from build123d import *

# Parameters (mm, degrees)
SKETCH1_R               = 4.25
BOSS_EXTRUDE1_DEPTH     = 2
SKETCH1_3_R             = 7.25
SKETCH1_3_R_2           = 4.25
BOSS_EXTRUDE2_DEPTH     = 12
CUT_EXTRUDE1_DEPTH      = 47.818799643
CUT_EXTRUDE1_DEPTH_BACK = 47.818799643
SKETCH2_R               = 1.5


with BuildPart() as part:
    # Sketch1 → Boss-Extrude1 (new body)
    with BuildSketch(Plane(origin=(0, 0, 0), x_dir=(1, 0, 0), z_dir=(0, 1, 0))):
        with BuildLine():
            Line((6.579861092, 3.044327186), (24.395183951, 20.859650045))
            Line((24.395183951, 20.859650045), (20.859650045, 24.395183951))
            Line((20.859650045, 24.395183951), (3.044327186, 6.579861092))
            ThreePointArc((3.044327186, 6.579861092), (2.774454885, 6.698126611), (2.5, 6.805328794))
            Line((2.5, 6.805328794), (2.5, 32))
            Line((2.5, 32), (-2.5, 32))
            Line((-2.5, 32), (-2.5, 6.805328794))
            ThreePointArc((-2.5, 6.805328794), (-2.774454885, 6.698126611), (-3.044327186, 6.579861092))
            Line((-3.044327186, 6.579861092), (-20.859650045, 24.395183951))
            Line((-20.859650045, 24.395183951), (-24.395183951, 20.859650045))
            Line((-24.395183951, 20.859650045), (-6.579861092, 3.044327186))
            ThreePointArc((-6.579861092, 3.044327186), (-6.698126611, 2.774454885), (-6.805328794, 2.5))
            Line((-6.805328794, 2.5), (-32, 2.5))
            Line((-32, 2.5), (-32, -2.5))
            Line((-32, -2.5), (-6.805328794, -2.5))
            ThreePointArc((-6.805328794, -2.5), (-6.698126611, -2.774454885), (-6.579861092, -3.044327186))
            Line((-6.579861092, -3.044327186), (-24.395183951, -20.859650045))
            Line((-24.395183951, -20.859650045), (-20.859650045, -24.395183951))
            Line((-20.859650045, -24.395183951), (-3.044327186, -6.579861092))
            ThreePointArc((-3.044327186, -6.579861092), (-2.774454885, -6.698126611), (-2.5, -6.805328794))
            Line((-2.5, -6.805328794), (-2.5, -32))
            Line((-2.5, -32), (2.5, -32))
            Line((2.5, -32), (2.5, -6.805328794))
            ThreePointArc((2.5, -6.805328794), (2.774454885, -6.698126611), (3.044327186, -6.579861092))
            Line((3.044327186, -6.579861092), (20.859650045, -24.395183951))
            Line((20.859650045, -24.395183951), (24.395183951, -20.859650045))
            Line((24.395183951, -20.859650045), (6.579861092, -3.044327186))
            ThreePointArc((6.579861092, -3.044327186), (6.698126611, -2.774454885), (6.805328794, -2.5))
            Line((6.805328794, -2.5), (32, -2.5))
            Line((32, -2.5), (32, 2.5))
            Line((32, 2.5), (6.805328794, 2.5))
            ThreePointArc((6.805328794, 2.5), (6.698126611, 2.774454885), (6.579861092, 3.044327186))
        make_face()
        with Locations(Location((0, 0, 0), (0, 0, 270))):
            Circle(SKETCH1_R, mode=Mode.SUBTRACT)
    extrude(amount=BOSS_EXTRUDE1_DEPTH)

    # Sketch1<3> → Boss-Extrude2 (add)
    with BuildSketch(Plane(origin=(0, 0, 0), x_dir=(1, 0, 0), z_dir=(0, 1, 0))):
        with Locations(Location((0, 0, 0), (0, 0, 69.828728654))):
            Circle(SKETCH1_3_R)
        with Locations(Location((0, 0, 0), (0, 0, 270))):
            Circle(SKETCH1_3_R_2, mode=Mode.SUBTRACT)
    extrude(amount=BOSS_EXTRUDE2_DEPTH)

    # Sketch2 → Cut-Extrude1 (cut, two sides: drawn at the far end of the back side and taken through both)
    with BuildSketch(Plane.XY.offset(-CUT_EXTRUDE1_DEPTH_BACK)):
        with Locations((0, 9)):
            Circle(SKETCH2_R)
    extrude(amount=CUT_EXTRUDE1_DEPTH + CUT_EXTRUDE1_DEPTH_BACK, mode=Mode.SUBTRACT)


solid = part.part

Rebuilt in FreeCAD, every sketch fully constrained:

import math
import FreeCAD as App
import Part
import Sketcher

V = App.Vector

doc = App.newDocument("Part")
body = doc.addObject("PartDesign::Body", "Body")

sketch1 = body.newObject("Sketcher::SketchObject", "Sketch")
sketch1.AttachmentSupport = (doc.getObject("XZ_Plane"), [""])
sketch1.MapMode = "FlatFace"
sketch1.addGeometry([
    Part.LineSegment(V(6.579861, -3.044327, 0), V(24.395184, -20.85965, 0)),
    Part.LineSegment(V(24.395184, -20.85965, 0), V(20.85965, -24.395184, 0)),
    Part.LineSegment(V(20.85965, -24.395184, 0), V(3.044327, -6.579861, 0)),
    Part.ArcOfCircle(Part.Circle(V(0, 0, 0), V(0, 0, 1), 7.25), math.radians(-69.828729), math.radians(-65.171271)),
    Part.LineSegment(V(2.5, -6.805329, 0), V(2.5, -32, 0)),
    Part.LineSegment(V(2.5, -32, 0), V(-2.5, -32, 0)),
    Part.LineSegment(V(-2.5, -32, 0), V(-2.5, -6.805329, 0)),
    Part.ArcOfCircle(Part.Circle(V(0, 0, 0), V(0, 0, 1), 7.25), math.radians(-114.828729), math.radians(-110.171271)),
    Part.LineSegment(V(-3.044327, -6.579861, 0), V(-20.85965, -24.395184, 0)),
    Part.LineSegment(V(-20.85965, -24.395184, 0), V(-24.395184, -20.85965, 0)),
    Part.LineSegment(V(-24.395184, -20.85965, 0), V(-6.579861, -3.044327, 0)),
    Part.ArcOfCircle(Part.Circle(V(0, 0, 0), V(0, 0, 1), 7.25), math.radians(-159.828729), math.radians(-155.171271)),
    Part.LineSegment(V(-6.805329, -2.5, 0), V(-32, -2.5, 0)),
    Part.LineSegment(V(-32, -2.5, 0), V(-32, 2.5, 0)),
    Part.LineSegment(V(-32, 2.5, 0), V(-6.805329, 2.5, 0)),
    Part.ArcOfCircle(Part.Circle(V(0, 0, 0), V(0, 0, 1), 7.25), math.radians(155.171271), math.radians(159.828729)),
    Part.LineSegment(V(-6.579861, 3.044327, 0), V(-24.395184, 20.85965, 0)),
    Part.LineSegment(V(-24.395184, 20.85965, 0), V(-20.85965, 24.395184, 0)),
    Part.LineSegment(V(-20.85965, 24.395184, 0), V(-3.044327, 6.579861, 0)),
    Part.ArcOfCircle(Part.Circle(V(0, 0, 0), V(0, 0, 1), 7.25), math.radians(110.171271), math.radians(114.828729)),
    Part.LineSegment(V(-2.5, 6.805329, 0), V(-2.5, 32, 0)),
    Part.LineSegment(V(-2.5, 32, 0), V(2.5, 32, 0)),
    Part.LineSegment(V(2.5, 32, 0), V(2.5, 6.805329, 0)),
    Part.ArcOfCircle(Part.Circle(V(0, 0, 0), V(0, 0, 1), 7.25), math.radians(65.171271), math.radians(69.828729)),
    Part.LineSegment(V(3.044327, 6.579861, 0), V(20.85965, 24.395184, 0)),
    Part.LineSegment(V(20.85965, 24.395184, 0), V(24.395184, 20.85965, 0)),
    Part.LineSegment(V(24.395184, 20.85965, 0), V(6.579861, 3.044327, 0)),
    Part.ArcOfCircle(Part.Circle(V(0, 0, 0), V(0, 0, 1), 7.25), math.radians(20.171271), math.radians(24.828729)),
    Part.LineSegment(V(6.805329, 2.5, 0), V(32, 2.5, 0)),
    Part.LineSegment(V(32, 2.5, 0), V(32, -2.5, 0)),
    Part.LineSegment(V(32, -2.5, 0), V(6.805329, -2.5, 0)),
    Part.ArcOfCircle(Part.Circle(V(0, 0, 0), V(0, 0, 1), 7.25), math.radians(-24.828729), math.radians(-20.171271)),
    Part.Circle(V(0, 0, 0), V(0, 0, 1), 4.25),
], False)
sketch1.addConstraint([
    Sketcher.Constraint("Coincident", 0, 2, 1, 1),
    Sketcher.Constraint("Coincident", 1, 2, 2, 1),
    Sketcher.Constraint("Coincident", 2, 2, 3, 2),
    Sketcher.Constraint("Coincident", 3, 1, 4, 1),
    Sketcher.Constraint("Coincident", 4, 2, 5, 1),
    Sketcher.Constraint("Coincident", 5, 2, 6, 1),
    Sketcher.Constraint("Coincident", 6, 2, 7, 2),
    Sketcher.Constraint("Coincident", 7, 1, 8, 1),
    Sketcher.Constraint("Coincident", 8, 2, 9, 1),
    Sketcher.Constraint("Coincident", 9, 2, 10, 1),
    Sketcher.Constraint("Coincident", 10, 2, 11, 2),
    Sketcher.Constraint("Coincident", 11, 1, 12, 1),
    Sketcher.Constraint("Coincident", 12, 2, 13, 1),
    Sketcher.Constraint("Coincident", 13, 2, 14, 1),
    Sketcher.Constraint("Coincident", 14, 2, 15, 2),
    Sketcher.Constraint("Coincident", 15, 1, 16, 1),
    Sketcher.Constraint("Coincident", 16, 2, 17, 1),
    Sketcher.Constraint("Coincident", 17, 2, 18, 1),
    Sketcher.Constraint("Coincident", 18, 2, 19, 2),
    Sketcher.Constraint("Coincident", 19, 1, 20, 1),
    Sketcher.Constraint("Coincident", 20, 2, 21, 1),
    Sketcher.Constraint("Coincident", 21, 2, 22, 1),
    Sketcher.Constraint("Coincident", 22, 2, 23, 2),
    Sketcher.Constraint("Coincident", 23, 1, 24, 1),
    Sketcher.Constraint("Coincident", 24, 2, 25, 1),
    Sketcher.Constraint("Coincident", 25, 2, 26, 1),
    Sketcher.Constraint("Coincident", 26, 2, 27, 2),
    Sketcher.Constraint("Coincident", 27, 1, 28, 1),
    Sketcher.Constraint("Coincident", 28, 2, 29, 1),
    Sketcher.Constraint("Coincident", 29, 2, 30, 1),
    Sketcher.Constraint("Coincident", 30, 2, 31, 2),
    Sketcher.Constraint("Coincident", 31, 1, 0, 1),
    Sketcher.Constraint("Vertical", 4),
    Sketcher.Constraint("Horizontal", 5),
    Sketcher.Constraint("Vertical", 6),
    Sketcher.Constraint("Horizontal", 12),
    Sketcher.Constraint("Vertical", 13),
    Sketcher.Constraint("Horizontal", 14),
    Sketcher.Constraint("Vertical", 20),
    Sketcher.Constraint("Horizontal", 21),
    Sketcher.Constraint("Vertical", 22),
    Sketcher.Constraint("Horizontal", 28),
    Sketcher.Constraint("Vertical", 29),
    Sketcher.Constraint("Horizontal", 30),
    Sketcher.Constraint("Coincident", 3, 3, -1, 1),
    Sketcher.Constraint("Coincident", 7, 3, -1, 1),
    Sketcher.Constraint("Coincident", 11, 3, -1, 1),
    Sketcher.Constraint("Coincident", 15, 3, -1, 1),
    Sketcher.Constraint("Coincident", 19, 3, -1, 1),
    Sketcher.Constraint("Coincident", 23, 3, -1, 1),
    Sketcher.Constraint("Coincident", 27, 3, -1, 1),
    Sketcher.Constraint("Coincident", 31, 3, -1, 1),
    Sketcher.Constraint("Coincident", 32, 3, -1, 1),
    Sketcher.Constraint("Equal", 3, 7),
    Sketcher.Constraint("Equal", 7, 11),
    Sketcher.Constraint("Equal", 11, 15),
    Sketcher.Constraint("Equal", 15, 19),
    Sketcher.Constraint("Equal", 19, 23),
    Sketcher.Constraint("Equal", 23, 27),
    Sketcher.Constraint("Equal", 27, 31),
    Sketcher.Constraint("Symmetric", 0, 2, 16, 2, -1, 1),
    Sketcher.Constraint("Symmetric", 1, 2, 17, 2, -1, 1),
    Sketcher.Constraint("Symmetric", 4, 2, 20, 2, -1, 1),
    Sketcher.Constraint("Symmetric", 8, 2, 24, 2, -1, 1),
    Sketcher.Constraint("Symmetric", 9, 2, 25, 2, -1, 1),
    Sketcher.Constraint("Symmetric", 12, 2, 28, 2, -1, 1),
    Sketcher.Constraint("Symmetric", 1, 2, 8, 2, -2),
    Sketcher.Constraint("Symmetric", 0, 2, 9, 2, -2),
    Sketcher.Constraint("Perpendicular", 0, 1),
    Sketcher.Constraint("Perpendicular", 1, 2),
    Sketcher.Constraint("Perpendicular", 2, 8),
    Sketcher.Constraint("Perpendicular", 8, 9),
    Sketcher.Constraint("Perpendicular", 9, 10),
    Sketcher.Constraint("Perpendicular", 10, 16),
    Sketcher.Constraint("Perpendicular", 17, 18),
    Sketcher.Constraint("Perpendicular", 18, 24),
    Sketcher.Constraint("Perpendicular", 25, 26),
    Sketcher.Constraint("Horizontal", 3, 1, 6, 2),
    Sketcher.Constraint("Horizontal", 19, 1, 22, 2),
    Sketcher.Constraint("Horizontal", 14, 2, 27, 1),
    Sketcher.Constraint("Horizontal", 12, 2, 29, 2),
    Sketcher.Constraint("Equal", 30, 4),
    Sketcher.Constraint("Equal", 21, 13),
    Sketcher.Constraint("Equal", 0, 2),
    Sketcher.Constraint("Diameter", 32, 8.5),
    Sketcher.Constraint("DistanceX", 5, 2, 5, 1, 5.0),
    Sketcher.Constraint("Radius", 3, 7.25),
    Sketcher.Constraint("Distance", 1, 5.0),
    Sketcher.Constraint("DistanceY", 4, 2, -1, 1, 32.0),
    Sketcher.Constraint("Distance", 0, 25.194671),
])
pad1 = body.newObject("PartDesign::Pad", "Pad")
pad1.Profile = sketch1
pad1.Length = 2
pad1.Reversed = True

sketch2 = body.newObject("Sketcher::SketchObject", "Sketch001")
sketch2.AttachmentSupport = (doc.getObject("XZ_Plane"), [""])
sketch2.MapMode = "FlatFace"
sketch2.addGeometry([
    Part.Circle(V(0, 0, 0), V(0, 0, 1), 7.25),
    Part.Circle(V(0, 0, 0), V(0, 0, 1), 4.25),
], False)
sketch2.addConstraint([
    Sketcher.Constraint("Coincident", 0, 3, -1, 1),
    Sketcher.Constraint("Coincident", 1, 3, -1, 1),
    Sketcher.Constraint("Diameter", 0, 14.5),
    Sketcher.Constraint("Diameter", 1, 8.5),
])
pad2 = body.newObject("PartDesign::Pad", "Pad001")
pad2.Profile = sketch2
pad2.Length = 12
pad2.Reversed = True

sketch3 = body.newObject("Sketcher::SketchObject", "Sketch002")
sketch3.AttachmentSupport = (doc.getObject("XY_Plane"), [""])
sketch3.MapMode = "FlatFace"
sketch3.addGeometry(Part.Circle(V(0, 9, 0), V(0, 0, 1), 1.5), False)
sketch3.addConstraint([
    Sketcher.Constraint("PointOnObject", 0, 3, -2),
    Sketcher.Constraint("Diameter", 0, 3.0),
    Sketcher.Constraint("DistanceY", -1, 1, 0, 3, 9.0),
])
pocket1 = body.newObject("PartDesign::Pocket", "Pocket")
pocket1.Profile = sketch3
pocket1.Type = "ThroughAll"
pocket1.Midplane = True

doc.recompute()
